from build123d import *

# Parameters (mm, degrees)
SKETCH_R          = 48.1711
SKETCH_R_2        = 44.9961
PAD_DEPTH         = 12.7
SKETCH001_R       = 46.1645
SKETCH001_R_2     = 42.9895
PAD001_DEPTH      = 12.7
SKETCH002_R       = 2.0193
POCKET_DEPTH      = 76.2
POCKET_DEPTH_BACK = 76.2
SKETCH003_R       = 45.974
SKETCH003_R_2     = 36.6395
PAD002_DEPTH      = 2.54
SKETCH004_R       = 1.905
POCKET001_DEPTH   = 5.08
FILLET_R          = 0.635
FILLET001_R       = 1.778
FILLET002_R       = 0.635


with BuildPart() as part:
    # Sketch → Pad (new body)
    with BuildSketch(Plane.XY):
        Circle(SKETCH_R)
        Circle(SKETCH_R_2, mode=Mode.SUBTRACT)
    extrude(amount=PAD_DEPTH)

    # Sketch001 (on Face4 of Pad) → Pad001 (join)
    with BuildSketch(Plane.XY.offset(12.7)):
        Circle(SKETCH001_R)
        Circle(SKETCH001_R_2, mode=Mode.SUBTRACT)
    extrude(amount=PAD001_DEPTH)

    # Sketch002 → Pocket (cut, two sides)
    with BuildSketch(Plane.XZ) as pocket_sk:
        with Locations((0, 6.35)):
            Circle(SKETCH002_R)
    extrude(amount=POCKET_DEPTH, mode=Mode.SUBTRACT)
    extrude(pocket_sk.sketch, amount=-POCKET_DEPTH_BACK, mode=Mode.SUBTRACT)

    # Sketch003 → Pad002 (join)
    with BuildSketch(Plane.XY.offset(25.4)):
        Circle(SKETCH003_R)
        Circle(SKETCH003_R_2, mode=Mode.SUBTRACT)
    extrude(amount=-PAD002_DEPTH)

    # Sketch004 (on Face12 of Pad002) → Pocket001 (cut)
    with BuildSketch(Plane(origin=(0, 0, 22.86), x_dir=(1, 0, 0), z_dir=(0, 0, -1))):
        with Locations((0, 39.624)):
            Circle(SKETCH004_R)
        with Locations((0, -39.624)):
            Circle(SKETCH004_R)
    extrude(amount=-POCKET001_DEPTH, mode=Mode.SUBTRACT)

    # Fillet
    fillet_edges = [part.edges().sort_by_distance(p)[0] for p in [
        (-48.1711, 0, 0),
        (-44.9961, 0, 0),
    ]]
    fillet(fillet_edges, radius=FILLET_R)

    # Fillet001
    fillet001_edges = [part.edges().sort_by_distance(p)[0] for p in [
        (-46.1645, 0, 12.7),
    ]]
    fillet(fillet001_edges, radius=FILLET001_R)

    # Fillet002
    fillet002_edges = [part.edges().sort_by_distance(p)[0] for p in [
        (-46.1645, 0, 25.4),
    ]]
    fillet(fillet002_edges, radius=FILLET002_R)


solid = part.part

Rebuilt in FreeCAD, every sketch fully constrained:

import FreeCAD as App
import Part
import Sketcher
from FreeCAD import Vector
Q = App.Units.Quantity


def edges_at(feature, points):
    """Names of the edges that pass closest to the given points."""
    edges = feature.Shape.Edges
    near = lambda p: min(range(len(edges)), key=lambda i: edges[i].distToShape(Part.Vertex(*p))[0])
    return sorted({f"Edge{near(p) + 1}" for p in points})

doc = App.newDocument("Part")
params = doc.addObject("Spreadsheet::Sheet", "Params")
for row, (alias, value) in enumerate([
    ("sketch1_diameter", "3.793 in"),
    ("sketch1_diameter2", "3.543 in"),
    ("pad1_length", "0.5 in"),
    ("sketch2_diameter", "3.635 in"),
    ("sketch2_diameter2", "3.385 in"),
    ("pad2_length", "0.5 in"),
    ("sketch3_diameter", "0.159 in"),
    ("sketch4_diameter", "3.62 in"),
    ("sketch4_diameter2", "2.885 in"),
    ("pad3_length", "0.1 in"),
    ("sketch5_diameter", "0.15 in"),
    ("pocket2_length", "0.2 in"),
    ("fillet_radius", "0.025 in"),
    ("fillet2_radius", "0.07 in"),
    ("fillet3_radius", "0.025 in"),
], start=1):
    params.set(f"A{row}", alias)
    params.set(f"B{row}", "=" + value)
    params.setAlias(f"B{row}", alias)

body = doc.addObject("PartDesign::Body", "Body")

sketch1 = doc.addObject("Sketcher::SketchObject", "Sketch")
body.addObject(sketch1)
sketch1.AttachmentSupport = (doc.XY_Plane, [""])
sketch1.MapMode = "FlatFace"
sketch1.addGeometry([
    Part.Circle(Vector(0, 0, 0), Vector(0, 0, 1), 48),
    Part.Circle(Vector(0, 0, 0), Vector(0, 0, 1), 45),
], False)
sketch1.addConstraint([
    Sketcher.Constraint("Coincident", 0, 3, -1, 1),
    Sketcher.Constraint("Coincident", 1, 3, -1, 1),
    Sketcher.Constraint("Diameter", 0, Q("3.793 in")),
    Sketcher.Constraint("Diameter", 1, Q("3.543 in")),
])
sketch1.setExpression("Constraints[2]", "Params.sketch1_diameter")
sketch1.setExpression("Constraints[3]", "Params.sketch1_diameter2")
pad1 = doc.addObject("PartDesign::Pad", "Pad")
body.addObject(pad1)
pad1.Profile = sketch1
pad1.setExpression("Length", "Params.pad1_length")

sketch2 = doc.addObject("Sketcher::SketchObject", "Sketch001")
body.addObject(sketch2)
sketch2.AttachmentSupport = (doc.XY_Plane, [""])
sketch2.MapMode = "FlatFace"
sketch2.AttachmentOffset = App.Placement(Vector(0, 0, 0.5 * 25.4), App.Rotation())
sketch2.addGeometry([
    Part.Circle(Vector(0, 0, 0), Vector(0, 0, 1), 46),
    Part.Circle(Vector(0, 0, 0), Vector(0, 0, 1), 43),
], False)
sketch2.addConstraint([
    Sketcher.Constraint("Coincident", 0, 3, -1, 1),
    Sketcher.Constraint("Coincident", 1, 3, -1, 1),
    Sketcher.Constraint("Diameter", 0, Q("3.635 in")),
    Sketcher.Constraint("Diameter", 1, Q("3.385 in")),
])
sketch2.setExpression("Constraints[2]", "Params.sketch2_diameter")
sketch2.setExpression("Constraints[3]", "Params.sketch2_diameter2")
pad2 = doc.addObject("PartDesign::Pad", "Pad001")
body.addObject(pad2)
pad2.Profile = sketch2
pad2.setExpression("Length", "Params.pad2_length")

sketch3 = doc.addObject("Sketcher::SketchObject", "Sketch002")
body.addObject(sketch3)
sketch3.AttachmentSupport = (doc.XZ_Plane, [""])
sketch3.MapMode = "FlatFace"
sketch3.addGeometry(Part.Circle(Vector(0, 6.3, 0), Vector(0, 0, 1), 2), False)
sketch3.addConstraint([
    Sketcher.Constraint("PointOnObject", 0, 3, -2),
    Sketcher.Constraint("Diameter", 0, Q("0.159 in")),
    Sketcher.Constraint("DistanceY", -1, 1, 0, 3, Q("0.25 in")),
])
sketch3.setExpression("Constraints[1]", "Params.sketch3_diameter")
pocket1 = doc.addObject("PartDesign::Pocket", "Pocket")
body.addObject(pocket1)
pocket1.Profile = sketch3
pocket1.Type = "ThroughAll"
pocket1.Midplane = True

sketch4 = doc.addObject("Sketcher::SketchObject", "Sketch003")
body.addObject(sketch4)
sketch4.AttachmentSupport = (doc.XY_Plane, [""])
sketch4.MapMode = "FlatFace"
sketch4.AttachmentOffset = App.Placement(Vector(0, 0, 1 * 25.4), App.Rotation())
sketch4.addGeometry([
    Part.Circle(Vector(0, 0, 0), Vector(0, 0, 1), 46),
    Part.Circle(Vector(0, 0, 0), Vector(0, 0, 1), 37),
], False)
sketch4.addConstraint([
    Sketcher.Constraint("Coincident", 0, 3, -1, 1),
    Sketcher.Constraint("Coincident", 1, 3, -1, 1),
    Sketcher.Constraint("Diameter", 0, Q("3.62 in")),
    Sketcher.Constraint("Diameter", 1, Q("2.885 in")),
])
sketch4.setExpression("Constraints[2]", "Params.sketch4_diameter")
sketch4.setExpression("Constraints[3]", "Params.sketch4_diameter2")
pad3 = doc.addObject("PartDesign::Pad", "Pad002")
body.addObject(pad3)
pad3.Profile = sketch4
pad3.setExpression("Length", "Params.pad3_length")
pad3.Reversed = True

sketch5 = doc.addObject("Sketcher::SketchObject", "Sketch004")
body.addObject(sketch5)
sketch5.AttachmentSupport = (doc.XY_Plane, [""])
sketch5.MapMode = "FlatFace"
sketch5.AttachmentOffset = App.Placement(Vector(0, 0, 0.9 * 25.4), App.Rotation())
sketch5.addGeometry([
    Part.Circle(Vector(0, -39.6, 0), Vector(0, 0, 1), 1.9),
    Part.Circle(Vector(0, 39.6, 0), Vector(0, 0, 1), 1.9),
], False)
sketch5.addConstraint([
    Sketcher.Constraint("Equal", 0, 1),
    Sketcher.Constraint("Symmetric", 0, 3, 1, 3, -1, 1),
    Sketcher.Constraint("PointOnObject", 0, 3, -2),
    Sketcher.Constraint("Diameter", 0, Q("0.15 in")),
    Sketcher.Constraint("DistanceY", 0, 3, -1, 1, Q("1.56 in")),
])
sketch5.setExpression("Constraints[3]", "Params.sketch5_diameter")
pocket2 = doc.addObject("PartDesign::Pocket", "Pocket001")
body.addObject(pocket2)
pocket2.Profile = sketch5
pocket2.setExpression("Length", "Params.pocket2_length")
pocket2.Reversed = True
doc.recompute()

fillet = doc.addObject("PartDesign::Fillet", "Fillet")
body.addObject(fillet)
fillet.Base = (pocket2, edges_at(pocket2, [(-48.171, 0, 0), (-44.996, 0, 0)]))
fillet.setExpression("Radius", "Params.fillet_radius")
doc.recompute()

fillet2 = doc.addObject("PartDesign::Fillet", "Fillet001")
body.addObject(fillet2)
fillet2.Base = (fillet, edges_at(fillet, [(-46.164, 0, 12.7)]))
fillet2.setExpression("Radius", "Params.fillet2_radius")
doc.recompute()

fillet3 = doc.addObject("PartDesign::Fillet", "Fillet002")
body.addObject(fillet3)
fillet3.Base = (fillet2, edges_at(fillet2, [(-46.164, 0, 25.4)]))
fillet3.setExpression("Radius", "Params.fillet3_radius")

doc.recompute()
